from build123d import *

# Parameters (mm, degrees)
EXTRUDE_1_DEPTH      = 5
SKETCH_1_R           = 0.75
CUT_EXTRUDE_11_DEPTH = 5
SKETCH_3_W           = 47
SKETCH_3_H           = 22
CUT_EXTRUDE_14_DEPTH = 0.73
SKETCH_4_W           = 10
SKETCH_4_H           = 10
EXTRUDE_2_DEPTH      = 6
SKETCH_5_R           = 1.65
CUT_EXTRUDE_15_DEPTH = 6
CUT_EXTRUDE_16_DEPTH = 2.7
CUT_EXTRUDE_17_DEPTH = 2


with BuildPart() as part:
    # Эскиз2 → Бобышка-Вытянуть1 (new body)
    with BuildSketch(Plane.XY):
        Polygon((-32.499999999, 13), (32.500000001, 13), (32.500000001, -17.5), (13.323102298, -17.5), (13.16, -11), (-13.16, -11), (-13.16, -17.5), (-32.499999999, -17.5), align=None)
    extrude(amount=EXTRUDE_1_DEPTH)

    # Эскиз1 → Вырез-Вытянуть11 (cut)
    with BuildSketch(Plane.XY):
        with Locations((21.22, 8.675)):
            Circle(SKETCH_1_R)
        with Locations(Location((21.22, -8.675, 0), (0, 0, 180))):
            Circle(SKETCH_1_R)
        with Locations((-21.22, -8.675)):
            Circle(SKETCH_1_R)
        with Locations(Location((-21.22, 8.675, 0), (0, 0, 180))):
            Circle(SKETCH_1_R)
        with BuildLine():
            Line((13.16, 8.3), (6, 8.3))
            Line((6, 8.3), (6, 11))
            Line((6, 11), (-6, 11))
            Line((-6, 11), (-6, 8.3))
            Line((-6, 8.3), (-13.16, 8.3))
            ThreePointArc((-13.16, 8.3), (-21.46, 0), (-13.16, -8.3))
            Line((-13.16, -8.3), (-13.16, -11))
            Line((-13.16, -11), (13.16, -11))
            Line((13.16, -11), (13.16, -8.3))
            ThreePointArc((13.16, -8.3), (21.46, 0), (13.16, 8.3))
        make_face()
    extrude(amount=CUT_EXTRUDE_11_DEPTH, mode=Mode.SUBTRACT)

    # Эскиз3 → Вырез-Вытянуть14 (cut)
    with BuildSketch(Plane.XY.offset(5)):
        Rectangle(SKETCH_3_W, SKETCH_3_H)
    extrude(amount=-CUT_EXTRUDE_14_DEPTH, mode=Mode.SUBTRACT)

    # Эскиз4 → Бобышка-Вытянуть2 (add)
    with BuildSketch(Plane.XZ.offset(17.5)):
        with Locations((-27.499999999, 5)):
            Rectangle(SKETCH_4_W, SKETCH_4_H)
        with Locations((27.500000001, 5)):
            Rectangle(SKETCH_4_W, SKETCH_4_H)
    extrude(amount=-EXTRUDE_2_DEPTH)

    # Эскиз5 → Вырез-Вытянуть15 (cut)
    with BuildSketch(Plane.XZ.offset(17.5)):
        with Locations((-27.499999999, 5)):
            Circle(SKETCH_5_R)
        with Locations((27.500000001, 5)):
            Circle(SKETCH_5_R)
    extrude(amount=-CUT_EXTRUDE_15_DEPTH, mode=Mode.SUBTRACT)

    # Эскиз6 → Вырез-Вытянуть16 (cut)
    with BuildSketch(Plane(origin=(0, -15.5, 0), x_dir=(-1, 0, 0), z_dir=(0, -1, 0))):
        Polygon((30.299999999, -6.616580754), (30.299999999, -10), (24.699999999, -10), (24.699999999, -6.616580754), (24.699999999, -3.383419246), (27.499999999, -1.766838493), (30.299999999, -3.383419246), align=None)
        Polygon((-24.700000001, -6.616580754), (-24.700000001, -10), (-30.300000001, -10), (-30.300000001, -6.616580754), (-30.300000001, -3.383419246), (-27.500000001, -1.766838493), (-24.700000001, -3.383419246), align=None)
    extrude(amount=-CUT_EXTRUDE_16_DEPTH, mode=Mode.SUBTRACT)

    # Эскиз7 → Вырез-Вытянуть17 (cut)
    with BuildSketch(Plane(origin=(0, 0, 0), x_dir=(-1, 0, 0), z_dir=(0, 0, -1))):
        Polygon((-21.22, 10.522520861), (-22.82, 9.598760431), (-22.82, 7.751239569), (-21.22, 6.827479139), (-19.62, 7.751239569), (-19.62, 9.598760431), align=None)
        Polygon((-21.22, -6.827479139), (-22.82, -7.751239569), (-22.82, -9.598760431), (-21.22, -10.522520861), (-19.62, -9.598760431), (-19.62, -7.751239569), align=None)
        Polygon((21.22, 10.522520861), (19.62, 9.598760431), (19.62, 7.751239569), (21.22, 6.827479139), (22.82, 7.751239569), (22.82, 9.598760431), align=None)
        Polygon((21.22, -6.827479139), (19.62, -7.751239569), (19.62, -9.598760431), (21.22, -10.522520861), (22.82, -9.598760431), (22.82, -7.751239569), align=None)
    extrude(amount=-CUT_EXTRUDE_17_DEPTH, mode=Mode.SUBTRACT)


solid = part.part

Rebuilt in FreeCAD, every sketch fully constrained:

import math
import FreeCAD as App
import Part
import Sketcher
Q = App.Units.Quantity

doc = App.newDocument("Part")
params = doc.addObject("Spreadsheet::Sheet", "Params")
for row, (alias, value) in enumerate([
    ("sketch1_width", "65 mm"),
    ("sketch1_height", "30.5 mm"),
    ("sketch1_height2", "6.5 mm"),
    ("sketch1_width2", "19.34 mm"),
    ("sketch1_width3", "26.32 mm"),
    ("pad1_length", "5 mm"),
    ("sketch2_diameter", "1.5 mm"),
    ("sketch2_radius", "8.3 mm"),
    ("sketch2_width", "12 mm"),
    ("sketch2_height", "2.7 mm"),
    ("sketch2_width2", "7.16 mm"),
    ("pocket1_length", "5 mm"),
    ("sketch3_width", "47 mm"),
    ("sketch3_height", "22 mm"),
    ("pocket2_length", "0.73 mm"),
    ("sketch4_width", "10 mm"),
    ("pad2_length", "6 mm"),
    ("sketch5_diameter", "3.3 mm"),
    ("pocket3_length", "6 mm"),
    ("sketch6_width", "5.6 mm"),
    ("pocket4_length", "2.7 mm"),
    ("pocket5_length", "2 mm"),
], start=1):
    params.set(f"A{row}", alias)
    params.set(f"B{row}", "=" + value)
    params.setAlias(f"B{row}", alias)

body = doc.addObject("PartDesign::Body", "Body")

# Sketch on XY plane
sketch1 = body.newObject("Sketcher::SketchObject", "Sketch")
sketch1.AttachmentSupport = (doc.getObject("XY_Plane"), [""])
sketch1.MapMode = "FlatFace"
sketch1.addGeometry(Part.LineSegment(App.Vector(33, 13, 0), App.Vector(-32, 13, 0)), False)
sketch1.addGeometry(Part.LineSegment(App.Vector(-32, 13, 0), App.Vector(-32, -18, 0)), False)
sketch1.addGeometry(Part.LineSegment(App.Vector(-32, -18, 0), App.Vector(-13, -18, 0)), False)
sketch1.addGeometry(Part.LineSegment(App.Vector(-13, -18, 0), App.Vector(-13, -11, 0)), False)
sketch1.addGeometry(Part.LineSegment(App.Vector(-13, -11, 0), App.Vector(13, -11, 0)), False)
sketch1.addGeometry(Part.LineSegment(App.Vector(13, -11, 0), App.Vector(13, -18, 0)), False)
sketch1.addGeometry(Part.LineSegment(App.Vector(13, -18, 0), App.Vector(33, -18, 0)), False)
sketch1.addGeometry(Part.LineSegment(App.Vector(33, -18, 0), App.Vector(33, 13, 0)), False)
sketch1.addConstraint(Sketcher.Constraint("Coincident", 0, 2, 1, 1))
sketch1.addConstraint(Sketcher.Constraint("Coincident", 1, 2, 2, 1))
sketch1.addConstraint(Sketcher.Constraint("Coincident", 2, 2, 3, 1))
sketch1.addConstraint(Sketcher.Constraint("Coincident", 3, 2, 4, 1))
sketch1.addConstraint(Sketcher.Constraint("Coincident", 4, 2, 5, 1))
sketch1.addConstraint(Sketcher.Constraint("Coincident", 5, 2, 6, 1))
sketch1.addConstraint(Sketcher.Constraint("Coincident", 6, 2, 7, 1))
sketch1.addConstraint(Sketcher.Constraint("Coincident", 7, 2, 0, 1))
sketch1.addConstraint(Sketcher.Constraint("Horizontal", 0))
sketch1.addConstraint(Sketcher.Constraint("Vertical", 1))
sketch1.addConstraint(Sketcher.Constraint("Horizontal", 2))
sketch1.addConstraint(Sketcher.Constraint("Vertical", 3))
sketch1.addConstraint(Sketcher.Constraint("Horizontal", 4))
sketch1.addConstraint(Sketcher.Constraint("Horizontal", 6))
sketch1.addConstraint(Sketcher.Constraint("Vertical", 7))
sketch1.addConstraint(Sketcher.Constraint("Symmetric", 1, 2, 6, 2, -2))
sketch1.addConstraint(Sketcher.Constraint("DistanceX", 0, 2, 0, 1, Q("65 mm")))
sketch1.addConstraint(Sketcher.Constraint("DistanceY", 1, 2, 1, 1, Q("30.5 mm")))
sketch1.addConstraint(Sketcher.Constraint("DistanceY", 3, 1, 3, 2, Q("6.5 mm")))
sketch1.addConstraint(Sketcher.Constraint("DistanceY", -1, 1, 0, 2, Q("13 mm")))
sketch1.addConstraint(Sketcher.Constraint("DistanceX", 2, 1, 2, 2, Q("19.34 mm")))
sketch1.addConstraint(Sketcher.Constraint("DistanceX", 4, 1, 4, 2, Q("26.32 mm")))
sketch1.addConstraint(Sketcher.Constraint("DistanceX", 6, 1, 6, 2, Q("19.176898 mm")))
sketch1.setExpression("Constraints[16]", "Params.sketch1_width")
sketch1.setExpression("Constraints[17]", "Params.sketch1_height")
sketch1.setExpression("Constraints[18]", "Params.sketch1_height2")
sketch1.setExpression("Constraints[20]", "Params.sketch1_width2")
sketch1.setExpression("Constraints[21]", "Params.sketch1_width3")
pad1 = body.newObject("PartDesign::Pad", "Pad")
pad1.Profile = sketch1
pad1.setExpression("Length", "Params.pad1_length")

# Sketch on XY plane
sketch2 = body.newObject("Sketcher::SketchObject", "Sketch001")
sketch2.AttachmentSupport = (doc.getObject("XY_Plane"), [""])
sketch2.MapMode = "FlatFace"
sketch2.addGeometry(Part.Circle(App.Vector(21.2, 8.7, 0), App.Vector(0, 0, 1), 0.8), False)
sketch2.addGeometry(Part.Circle(App.Vector(21.2, -8.7, 0), App.Vector(0, 0, 1), 0.8), False)
sketch2.addGeometry(Part.Circle(App.Vector(-21.2, -8.7, 0), App.Vector(0, 0, 1), 0.8), False)
sketch2.addGeometry(Part.Circle(App.Vector(-21.2, 8.7, 0), App.Vector(0, 0, 1), 0.8), False)
sketch2.addGeometry(Part.LineSegment(App.Vector(13.2, 8.3, 0), App.Vector(6, 8.3, 0)), False)
sketch2.addGeometry(Part.LineSegment(App.Vector(6, 8.3, 0), App.Vector(6, 11, 0)), False)
sketch2.addGeometry(Part.LineSegment(App.Vector(6, 11, 0), App.Vector(-6, 11, 0)), False)
sketch2.addGeometry(Part.LineSegment(App.Vector(-6, 11, 0), App.Vector(-6, 8.3, 0)), False)
sketch2.addGeometry(Part.LineSegment(App.Vector(-6, 8.3, 0), App.Vector(-13.2, 8.3, 0)), False)
sketch2.addGeometry(Part.ArcOfCircle(Part.Circle(App.Vector(-13.2, 0, 0), App.Vector(0, 0, 1), 8.3), math.radians(90), math.radians(270)), False)
sketch2.addGeometry(Part.LineSegment(App.Vector(-13.2, -8.3, 0), App.Vector(-13.2, -11, 0)), False)
sketch2.addGeometry(Part.LineSegment(App.Vector(-13.2, -11, 0), App.Vector(13.2, -11, 0)), False)
sketch2.addGeometry(Part.LineSegment(App.Vector(13.2, -11, 0), App.Vector(13.2, -8.3, 0)), False)
sketch2.addGeometry(Part.ArcOfCircle(Part.Circle(App.Vector(13.2, 0, 0), App.Vector(0, 0, 1), 8.3), math.radians(-90), math.radians(90)), False)
sketch2.addConstraint(Sketcher.Constraint("Coincident", 4, 2, 5, 1))
sketch2.addConstraint(Sketcher.Constraint("Coincident", 5, 2, 6, 1))
sketch2.addConstraint(Sketcher.Constraint("Coincident", 6, 2, 7, 1))
sketch2.addConstraint(Sketcher.Constraint("Coincident", 7, 2, 8, 1))
sketch2.addConstraint(Sketcher.Constraint("Tangent", 8, 2, 9, 1))
sketch2.addConstraint(Sketcher.Constraint("Coincident", 9, 2, 10, 1))
sketch2.addConstraint(Sketcher.Constraint("Coincident", 10, 2, 11, 1))
sketch2.addConstraint(Sketcher.Constraint("Coincident", 11, 2, 12, 1))
sketch2.addConstraint(Sketcher.Constraint("Coincident", 12, 2, 13, 1))
sketch2.addConstraint(Sketcher.Constraint("Tangent", 13, 2, 4, 1))
sketch2.addConstraint(Sketcher.Constraint("Horizontal", 4))
sketch2.addConstraint(Sketcher.Constraint("Vertical", 5))
sketch2.addConstraint(Sketcher.Constraint("Horizontal", 6))
sketch2.addConstraint(Sketcher.Constraint("Vertical", 7))
sketch2.addConstraint(Sketcher.Constraint("Horizontal", 8))
sketch2.addConstraint(Sketcher.Constraint("Vertical", 10))
sketch2.addConstraint(Sketcher.Constraint("Horizontal", 11))
sketch2.addConstraint(Sketcher.Constraint("Vertical", 12))
sketch2.addConstraint(Sketcher.Constraint("Equal", 0, 1))
sketch2.addConstraint(Sketcher.Constraint("Equal", 1, 2))
sketch2.addConstraint(Sketcher.Constraint("Equal", 2, 3))
sketch2.addConstraint(Sketcher.Constraint("Equal", 9, 13))
sketch2.addConstraint(Sketcher.Constraint("Symmetric", 0, 3, 2, 3, -1, 1))
sketch2.addConstraint(Sketcher.Constraint("Symmetric", 1, 3, 3, 3, -1, 1))
sketch2.addConstraint(Sketcher.Constraint("Symmetric", 9, 3, 13, 3, -1, 1))
sketch2.addConstraint(Sketcher.Constraint("Symmetric", 1, 3, 2, 3, -2))
sketch2.addConstraint(Sketcher.Constraint("Symmetric", 4, 2, 7, 2, -2))
sketch2.addConstraint(Sketcher.Constraint("Vertical", 8, 2, 9, 2))
sketch2.addConstraint(Sketcher.Constraint("Vertical", 13, 3, 11, 2))
sketch2.addConstraint(Sketcher.Constraint("Equal", 7, 10))
sketch2.addConstraint(Sketcher.Constraint("Diameter", 0, Q("1.5 mm")))
sketch2.addConstraint(Sketcher.Constraint("Radius", 9, Q("8.3 mm")))
sketch2.addConstraint(Sketcher.Constraint("DistanceX", 6, 2, 6, 1, Q("12 mm")))
sketch2.addConstraint(Sketcher.Constraint("DistanceY", 5, 1, 5, 2, Q("2.7 mm")))
sketch2.addConstraint(Sketcher.Constraint("DistanceX", 4, 2, 4, 1, Q("7.16 mm")))
sketch2.addConstraint(Sketcher.Constraint("DistanceX", -1, 1, 0, 3, Q("21.22 mm")))
sketch2.addConstraint(Sketcher.Constraint("DistanceY", 1, 3, 0, 3, Q("17.35 mm")))
sketch2.setExpression("Constraints[30]", "Params.sketch2_diameter")
sketch2.setExpression("Constraints[31]", "Params.sketch2_radius")
sketch2.setExpression("Constraints[32]", "Params.sketch2_width")
sketch2.setExpression("Constraints[33]", "Params.sketch2_height")
sketch2.setExpression("Constraints[34]", "Params.sketch2_width2")
pocket1 = body.newObject("PartDesign::Pocket", "Pocket")
pocket1.Profile = sketch2
pocket1.setExpression("Length", "Params.pocket1_length")
pocket1.Reversed = True

# Sketch on XY plane
sketch3 = body.newObject("Sketcher::SketchObject", "Sketch002")
sketch3.AttachmentSupport = (doc.getObject("XY_Plane"), [""])
sketch3.MapMode = "FlatFace"
sketch3.AttachmentOffset = App.Placement(App.Vector(0, 0, 5), App.Rotation())
sketch3.addGeometry(Part.LineSegment(App.Vector(-24, 11, 0), App.Vector(-24, -11, 0)), False)
sketch3.addGeometry(Part.LineSegment(App.Vector(-24, -11, 0), App.Vector(24, -11, 0)), False)
sketch3.addGeometry(Part.LineSegment(App.Vector(24, -11, 0), App.Vector(24, 11, 0)), False)
sketch3.addGeometry(Part.LineSegment(App.Vector(24, 11, 0), App.Vector(-24, 11, 0)), False)
sketch3.addConstraint(Sketcher.Constraint("Coincident", 0, 2, 1, 1))
sketch3.addConstraint(Sketcher.Constraint("Coincident", 1, 2, 2, 1))
sketch3.addConstraint(Sketcher.Constraint("Coincident", 2, 2, 3, 1))
sketch3.addConstraint(Sketcher.Constraint("Coincident", 3, 2, 0, 1))
sketch3.addConstraint(Sketcher.Constraint("Vertical", 0))
sketch3.addConstraint(Sketcher.Constraint("Horizontal", 1))
sketch3.addConstraint(Sketcher.Constraint("Vertical", 2))
sketch3.addConstraint(Sketcher.Constraint("Horizontal", 3))
sketch3.addConstraint(Sketcher.Constraint("Symmetric", 0, 2, 2, 2, -1, 1))
sketch3.addConstraint(Sketcher.Constraint("DistanceX", 1, 1, 1, 2, Q("47 mm")))
sketch3.addConstraint(Sketcher.Constraint("DistanceY", 0, 2, 0, 1, Q("22 mm")))
sketch3.setExpression("Constraints[9]", "Params.sketch3_width")
sketch3.setExpression("Constraints[10]", "Params.sketch3_height")
pocket2 = body.newObject("PartDesign::Pocket", "Pocket001")
pocket2.Profile = sketch3
pocket2.setExpression("Length", "Params.pocket2_length")

# Sketch on XZ plane
sketch4 = body.newObject("Sketcher::SketchObject", "Sketch003")
sketch4.AttachmentSupport = (doc.getObject("XZ_Plane"), [""])
sketch4.MapMode = "FlatFace"
sketch4.AttachmentOffset = App.Placement(App.Vector(0, 0, 17.5), App.Rotation())
sketch4.addGeometry(Part.LineSegment(App.Vector(-32, 10, 0), App.Vector(-32, 0, 0)), False)
sketch4.addGeometry(Part.LineSegment(App.Vector(-32, 0, 0), App.Vector(-22, 0, 0)), False)
sketch4.addGeometry(Part.LineSegment(App.Vector(-22, 0, 0), App.Vector(-22, 10, 0)), False)
sketch4.addGeometry(Part.LineSegment(App.Vector(-22, 10, 0), App.Vector(-32, 10, 0)), False)
sketch4.addGeometry(Part.LineSegment(App.Vector(23, 10, 0), App.Vector(23, 0, 0)), False)
sketch4.addGeometry(Part.LineSegment(App.Vector(23, 0, 0), App.Vector(33, 0, 0)), False)
sketch4.addGeometry(Part.LineSegment(App.Vector(33, 0, 0), App.Vector(33, 10, 0)), False)
sketch4.addGeometry(Part.LineSegment(App.Vector(33, 10, 0), App.Vector(23, 10, 0)), False)
sketch4.addConstraint(Sketcher.Constraint("Coincident", 0, 2, 1, 1))
sketch4.addConstraint(Sketcher.Constraint("Coincident", 1, 2, 2, 1))
sketch4.addConstraint(Sketcher.Constraint("Coincident", 2, 2, 3, 1))
sketch4.addConstraint(Sketcher.Constraint("Coincident", 3, 2, 0, 1))
sketch4.addConstraint(Sketcher.Constraint("Coincident", 4, 2, 5, 1))
sketch4.addConstraint(Sketcher.Constraint("Coincident", 5, 2, 6, 1))
sketch4.addConstraint(Sketcher.Constraint("Coincident", 6, 2, 7, 1))
sketch4.addConstraint(Sketcher.Constraint("Coincident", 7, 2, 4, 1))
sketch4.addConstraint(Sketcher.Constraint("Vertical", 0))
sketch4.addConstraint(Sketcher.Constraint("Horizontal", 1))
sketch4.addConstraint(Sketcher.Constraint("Vertical", 2))
sketch4.addConstraint(Sketcher.Constraint("Horizontal", 3))
sketch4.addConstraint(Sketcher.Constraint("Vertical", 4))
sketch4.addConstraint(Sketcher.Constraint("Horizontal", 5))
sketch4.addConstraint(Sketcher.Constraint("Vertical", 6))
sketch4.addConstraint(Sketcher.Constraint("Horizontal", 7))
sketch4.addConstraint(Sketcher.Constraint("Symmetric", 1, 2, 4, 2, -1, 1))
sketch4.addConstraint(Sketcher.Constraint("Symmetric", 0, 2, 5, 2, -2))
sketch4.addConstraint(Sketcher.Constraint("Horizontal", 3, 2, 6, 2))
sketch4.addConstraint(Sketcher.Constraint("Equal", 7, 0))
sketch4.addConstraint(Sketcher.Constraint("DistanceX", 1, 1, 1, 2, Q("10 mm")))
sketch4.addConstraint(Sketcher.Constraint("DistanceX", 1, 2, 4, 2, Q("45 mm")))
sketch4.setExpression("Constraints[20]", "Params.sketch4_width")
pad2 = body.newObject("PartDesign::Pad", "Pad001")
pad2.Profile = sketch4
pad2.setExpression("Length", "Params.pad2_length")
pad2.Reversed = True

# Sketch on XZ plane
sketch5 = body.newObject("Sketcher::SketchObject", "Sketch004")
sketch5.AttachmentSupport = (doc.getObject("XZ_Plane"), [""])
sketch5.MapMode = "FlatFace"
sketch5.AttachmentOffset = App.Placement(App.Vector(0, 0, 17.5), App.Rotation())
sketch5.addGeometry(Part.Circle(App.Vector(-27.5, 5, 0), App.Vector(0, 0, 1), 1.6), False)
sketch5.addGeometry(Part.Circle(App.Vector(27.5, 5, 0), App.Vector(0, 0, 1), 1.6), False)
sketch5.addConstraint(Sketcher.Constraint("Equal", 0, 1))
sketch5.addConstraint(Sketcher.Constraint("Symmetric", 0, 3, 1, 3, -2))
sketch5.addConstraint(Sketcher.Constraint("Diameter", 0, Q("3.3 mm")))
sketch5.addConstraint(Sketcher.Constraint("DistanceY", -1, 1, 0, 3, Q("5 mm")))
sketch5.addConstraint(Sketcher.Constraint("DistanceX", 0, 3, 1, 3, Q("55 mm")))
sketch5.setExpression("Constraints[2]", "Params.sketch5_diameter")
pocket3 = body.newObject("PartDesign::Pocket", "Pocket002")
pocket3.Profile = sketch5
pocket3.setExpression("Length", "Params.pocket3_length")

# Sketch on XZ plane
sketch6 = body.newObject("Sketcher::SketchObject", "Sketch005")
sketch6.AttachmentSupport = (doc.getObject("XZ_Plane"), [""])
sketch6.MapMode = "FlatFace"
sketch6.AttachmentOffset = App.Placement(App.Vector(0, 0, 15.5), App.Rotation())
sketch6.addGeometry(Part.LineSegment(App.Vector(-30.3, 10, 0), App.Vector(-30.3, 3.4, 0)), False)
sketch6.addGeometry(Part.LineSegment(App.Vector(-30.3, 3.4, 0), App.Vector(-27.5, 1.8, 0)), False)
sketch6.addGeometry(Part.LineSegment(App.Vector(-27.5, 1.8, 0), App.Vector(-24.7, 3.4, 0)), False)
sketch6.addGeometry(Part.LineSegment(App.Vector(-24.7, 3.4, 0), App.Vector(-24.7, 10, 0)), False)
sketch6.addGeometry(Part.LineSegment(App.Vector(-24.7, 10, 0), App.Vector(-30.3, 10, 0)), False)
sketch6.addGeometry(Part.LineSegment(App.Vector(24.7, 10, 0), App.Vector(24.7, 3.4, 0)), False)
sketch6.addGeometry(Part.LineSegment(App.Vector(24.7, 3.4, 0), App.Vector(27.5, 1.8, 0)), False)
sketch6.addGeometry(Part.LineSegment(App.Vector(27.5, 1.8, 0), App.Vector(30.3, 3.4, 0)), False)
sketch6.addGeometry(Part.LineSegment(App.Vector(30.3, 3.4, 0), App.Vector(30.3, 10, 0)), False)
sketch6.addGeometry(Part.LineSegment(App.Vector(30.3, 10, 0), App.Vector(24.7, 10, 0)), False)
sketch6.addConstraint(Sketcher.Constraint("Coincident", 0, 2, 1, 1))
sketch6.addConstraint(Sketcher.Constraint("Coincident", 1, 2, 2, 1))
sketch6.addConstraint(Sketcher.Constraint("Coincident", 2, 2, 3, 1))
sketch6.addConstraint(Sketcher.Constraint("Coincident", 3, 2, 4, 1))
sketch6.addConstraint(Sketcher.Constraint("Coincident", 4, 2, 0, 1))
sketch6.addConstraint(Sketcher.Constraint("Coincident", 5, 2, 6, 1))
sketch6.addConstraint(Sketcher.Constraint("Coincident", 6, 2, 7, 1))
sketch6.addConstraint(Sketcher.Constraint("Coincident", 7, 2, 8, 1))
sketch6.addConstraint(Sketcher.Constraint("Coincident", 8, 2, 9, 1))
sketch6.addConstraint(Sketcher.Constraint("Coincident", 9, 2, 5, 1))
sketch6.addConstraint(Sketcher.Constraint("Vertical", 0))
sketch6.addConstraint(Sketcher.Constraint("Vertical", 3))
sketch6.addConstraint(Sketcher.Constraint("Horizontal", 4))
sketch6.addConstraint(Sketcher.Constraint("Vertical", 5))
sketch6.addConstraint(Sketcher.Constraint("Vertical", 8))
sketch6.addConstraint(Sketcher.Constraint("Horizontal", 9))
sketch6.addConstraint(Sketcher.Constraint("Symmetric", 2, 2, 5, 2, -2))
sketch6.addConstraint(Sketcher.Constraint("Symmetric", 1, 2, 6, 2, -2))
sketch6.addConstraint(Sketcher.Constraint("Symmetric", 0, 2, 7, 2, -2))
sketch6.addConstraint(Sketcher.Constraint("Parallel", 1, 6))
sketch6.addConstraint(Sketcher.Constraint("Horizontal", 0, 2, 2, 2))
sketch6.addConstraint(Sketcher.Constraint("Horizontal", 4, 2, 8, 2))
sketch6.addConstraint(Sketcher.Constraint("Angle", 1, Q("-30 deg")))
sketch6.addConstraint(Sketcher.Constraint("DistanceX", 4, 2, 4, 1, Q("5.6 mm")))
sketch6.addConstraint(Sketcher.Constraint("DistanceY", -1, 1, 3, 2, Q("10 mm")))
sketch6.addConstraint(Sketcher.Constraint("DistanceX", 0, 2, 5, 2, Q("55 mm")))
sketch6.addConstraint(Sketcher.Constraint("DistanceY", 0, 2, 0, 1, Q("6.616581 mm")))
sketch6.setExpression("Constraints[23]", "Params.sketch6_width")
pocket4 = body.newObject("PartDesign::Pocket", "Pocket003")
pocket4.Profile = sketch6
pocket4.setExpression("Length", "Params.pocket4_length")

# Sketch on XY plane
sketch7 = body.newObject("Sketcher::SketchObject", "Sketch006")
sketch7.AttachmentSupport = (doc.getObject("XY_Plane"), [""])
sketch7.MapMode = "FlatFace"
sketch7.addGeometry(Part.LineSegment(App.Vector(21.2, 10.5, 0), App.Vector(22.8, 9.6, 0)), False)
sketch7.addGeometry(Part.LineSegment(App.Vector(22.8, 9.6, 0), App.Vector(22.8, 7.8, 0)), False)
sketch7.addGeometry(Part.LineSegment(App.Vector(22.8, 7.8, 0), App.Vector(21.2, 6.8, 0)), False)
sketch7.addGeometry(Part.LineSegment(App.Vector(21.2, 6.8, 0), App.Vector(19.6, 7.8, 0)), False)
sketch7.addGeometry(Part.LineSegment(App.Vector(19.6, 7.8, 0), App.Vector(19.6, 9.6, 0)), False)
sketch7.addGeometry(Part.LineSegment(App.Vector(19.6, 9.6, 0), App.Vector(21.2, 10.5, 0)), False)
sketch7.addGeometry(Part.LineSegment(App.Vector(21.2, -6.8, 0), App.Vector(22.8, -7.8, 0)), False)
sketch7.addGeometry(Part.LineSegment(App.Vector(22.8, -7.8, 0), App.Vector(22.8, -9.6, 0)), False)
sketch7.addGeometry(Part.LineSegment(App.Vector(22.8, -9.6, 0), App.Vector(21.2, -10.5, 0)), False)
sketch7.addGeometry(Part.LineSegment(App.Vector(21.2, -10.5, 0), App.Vector(19.6, -9.6, 0)), False)
sketch7.addGeometry(Part.LineSegment(App.Vector(19.6, -9.6, 0), App.Vector(19.6, -7.8, 0)), False)
sketch7.addGeometry(Part.LineSegment(App.Vector(19.6, -7.8, 0), App.Vector(21.2, -6.8, 0)), False)
sketch7.addGeometry(Part.LineSegment(App.Vector(-21.2, 10.5, 0), App.Vector(-19.6, 9.6, 0)), False)
sketch7.addGeometry(Part.LineSegment(App.Vector(-19.6, 9.6, 0), App.Vector(-19.6, 7.8, 0)), False)
sketch7.addGeometry(Part.LineSegment(App.Vector(-19.6, 7.8, 0), App.Vector(-21.2, 6.8, 0)), False)
sketch7.addGeometry(Part.LineSegment(App.Vector(-21.2, 6.8, 0), App.Vector(-22.8, 7.8, 0)), False)
sketch7.addGeometry(Part.LineSegment(App.Vector(-22.8, 7.8, 0), App.Vector(-22.8, 9.6, 0)), False)
sketch7.addGeometry(Part.LineSegment(App.Vector(-22.8, 9.6, 0), App.Vector(-21.2, 10.5, 0)), False)
sketch7.addGeometry(Part.LineSegment(App.Vector(-21.2, -6.8, 0), App.Vector(-19.6, -7.8, 0)), False)
sketch7.addGeometry(Part.LineSegment(App.Vector(-19.6, -7.8, 0), App.Vector(-19.6, -9.6, 0)), False)
sketch7.addGeometry(Part.LineSegment(App.Vector(-19.6, -9.6, 0), App.Vector(-21.2, -10.5, 0)), False)
sketch7.addGeometry(Part.LineSegment(App.Vector(-21.2, -10.5, 0), App.Vector(-22.8, -9.6, 0)), False)
sketch7.addGeometry(Part.LineSegment(App.Vector(-22.8, -9.6, 0), App.Vector(-22.8, -7.8, 0)), False)
sketch7.addGeometry(Part.LineSegment(App.Vector(-22.8, -7.8, 0), App.Vector(-21.2, -6.8, 0)), False)
sketch7.addConstraint(Sketcher.Constraint("Coincident", 0, 2, 1, 1))
sketch7.addConstraint(Sketcher.Constraint("Coincident", 1, 2, 2, 1))
sketch7.addConstraint(Sketcher.Constraint("Coincident", 2, 2, 3, 1))
sketch7.addConstraint(Sketcher.Constraint("Coincident", 3, 2, 4, 1))
sketch7.addConstraint(Sketcher.Constraint("Coincident", 4, 2, 5, 1))
sketch7.addConstraint(Sketcher.Constraint("Coincident", 5, 2, 0, 1))
sketch7.addConstraint(Sketcher.Constraint("Coincident", 6, 2, 7, 1))
sketch7.addConstraint(Sketcher.Constraint("Coincident", 7, 2, 8, 1))
sketch7.addConstraint(Sketcher.Constraint("Coincident", 8, 2, 9, 1))
sketch7.addConstraint(Sketcher.Constraint("Coincident", 9, 2, 10, 1))
sketch7.addConstraint(Sketcher.Constraint("Coincident", 10, 2, 11, 1))
sketch7.addConstraint(Sketcher.Constraint("Coincident", 11, 2, 6, 1))
sketch7.addConstraint(Sketcher.Constraint("Coincident", 12, 2, 13, 1))
sketch7.addConstraint(Sketcher.Constraint("Coincident", 13, 2, 14, 1))
sketch7.addConstraint(Sketcher.Constraint("Coincident", 14, 2, 15, 1))
sketch7.addConstraint(Sketcher.Constraint("Coincident", 15, 2, 16, 1))
sketch7.addConstraint(Sketcher.Constraint("Coincident", 16, 2, 17, 1))
sketch7.addConstraint(Sketcher.Constraint("Coincident", 17, 2, 12, 1))
sketch7.addConstraint(Sketcher.Constraint("Coincident", 18, 2, 19, 1))
sketch7.addConstraint(Sketcher.Constraint("Coincident", 19, 2, 20, 1))
sketch7.addConstraint(Sketcher.Constraint("Coincident", 20, 2, 21, 1))
sketch7.addConstraint(Sketcher.Constraint("Coincident", 21, 2, 22, 1))
sketch7.addConstraint(Sketcher.Constraint("Coincident", 22, 2, 23, 1))
sketch7.addConstraint(Sketcher.Constraint("Coincident", 23, 2, 18, 1))
sketch7.addConstraint(Sketcher.Constraint("Vertical", 1))
sketch7.addConstraint(Sketcher.Constraint("Vertical", 4))
sketch7.addConstraint(Sketcher.Constraint("Vertical", 7))
sketch7.addConstraint(Sketcher.Constraint("Vertical", 10))
sketch7.addConstraint(Sketcher.Constraint("Vertical", 13))
sketch7.addConstraint(Sketcher.Constraint("Vertical", 16))
sketch7.addConstraint(Sketcher.Constraint("Vertical", 19))
sketch7.addConstraint(Sketcher.Constraint("Vertical", 22))
sketch7.addConstraint(Sketcher.Constraint("Symmetric", 9, 2, 12, 2, -1, 1))
sketch7.addConstraint(Sketcher.Constraint("Symmetric", 11, 2, 14, 2, -1, 1))
sketch7.addConstraint(Sketcher.Constraint("Symmetric", 6, 2, 15, 2, -1, 1))
sketch7.addConstraint(Sketcher.Constraint("Symmetric", 8, 2, 17, 2, -1, 1))
sketch7.addConstraint(Sketcher.Constraint("Symmetric", 3, 2, 18, 2, -1, 1))
sketch7.addConstraint(Sketcher.Constraint("Symmetric", 5, 2, 20, 2, -1, 1))
sketch7.addConstraint(Sketcher.Constraint("Symmetric", 0, 2, 21, 2, -1, 1))
sketch7.addConstraint(Sketcher.Constraint("Symmetric", 2, 2, 23, 2, -1, 1))
sketch7.addConstraint(Sketcher.Constraint("Symmetric", 4, 2, 12, 2, -2))
sketch7.addConstraint(Sketcher.Constraint("Symmetric", 2, 2, 14, 2, -2))
sketch7.addConstraint(Sketcher.Constraint("Symmetric", 1, 2, 15, 2, -2))
sketch7.addConstraint(Sketcher.Constraint("Symmetric", 5, 2, 17, 2, -2))
sketch7.addConstraint(Sketcher.Constraint("Parallel", 0, 3))
sketch7.addConstraint(Sketcher.Constraint("Parallel", 2, 5))
sketch7.addConstraint(Sketcher.Constraint("Parallel", 3, 6))
sketch7.addConstraint(Sketcher.Constraint("Parallel", 5, 8))
sketch7.addConstraint(Sketcher.Constraint("Parallel", 8, 11))
sketch7.addConstraint(Sketcher.Constraint("Parallel", 11, 14))
sketch7.addConstraint(Sketcher.Constraint("Parallel", 14, 17))
sketch7.addConstraint(Sketcher.Constraint("Parallel", 17, 20))
sketch7.addConstraint(Sketcher.Constraint("Parallel", 20, 23))
sketch7.addConstraint(Sketcher.Constraint("Horizontal", 1, 2, 3, 2))
sketch7.addConstraint(Sketcher.Constraint("Horizontal", 0, 2, 4, 2))
sketch7.addConstraint(Sketcher.Constraint("Angle", 0, Q("-30 deg")))
sketch7.addConstraint(Sketcher.Constraint("DistanceX", 2, 2, 1, 2, Q("1.6 mm")))
sketch7.addConstraint(Sketcher.Constraint("DistanceX", -1, 1, 0, 2, Q("22.82 mm")))
sketch7.addConstraint(Sketcher.Constraint("DistanceY", 6, 2, 0, 2, Q("17.35 mm")))
sketch7.addConstraint(Sketcher.Constraint("DistanceY", 1, 2, 1, 1, Q("1.847521 mm")))
pocket5 = body.newObject("PartDesign::Pocket", "Pocket004")
pocket5.Profile = sketch7
pocket5.setExpression("Length", "Params.pocket5_length")
pocket5.Reversed = True

doc.recompute()
